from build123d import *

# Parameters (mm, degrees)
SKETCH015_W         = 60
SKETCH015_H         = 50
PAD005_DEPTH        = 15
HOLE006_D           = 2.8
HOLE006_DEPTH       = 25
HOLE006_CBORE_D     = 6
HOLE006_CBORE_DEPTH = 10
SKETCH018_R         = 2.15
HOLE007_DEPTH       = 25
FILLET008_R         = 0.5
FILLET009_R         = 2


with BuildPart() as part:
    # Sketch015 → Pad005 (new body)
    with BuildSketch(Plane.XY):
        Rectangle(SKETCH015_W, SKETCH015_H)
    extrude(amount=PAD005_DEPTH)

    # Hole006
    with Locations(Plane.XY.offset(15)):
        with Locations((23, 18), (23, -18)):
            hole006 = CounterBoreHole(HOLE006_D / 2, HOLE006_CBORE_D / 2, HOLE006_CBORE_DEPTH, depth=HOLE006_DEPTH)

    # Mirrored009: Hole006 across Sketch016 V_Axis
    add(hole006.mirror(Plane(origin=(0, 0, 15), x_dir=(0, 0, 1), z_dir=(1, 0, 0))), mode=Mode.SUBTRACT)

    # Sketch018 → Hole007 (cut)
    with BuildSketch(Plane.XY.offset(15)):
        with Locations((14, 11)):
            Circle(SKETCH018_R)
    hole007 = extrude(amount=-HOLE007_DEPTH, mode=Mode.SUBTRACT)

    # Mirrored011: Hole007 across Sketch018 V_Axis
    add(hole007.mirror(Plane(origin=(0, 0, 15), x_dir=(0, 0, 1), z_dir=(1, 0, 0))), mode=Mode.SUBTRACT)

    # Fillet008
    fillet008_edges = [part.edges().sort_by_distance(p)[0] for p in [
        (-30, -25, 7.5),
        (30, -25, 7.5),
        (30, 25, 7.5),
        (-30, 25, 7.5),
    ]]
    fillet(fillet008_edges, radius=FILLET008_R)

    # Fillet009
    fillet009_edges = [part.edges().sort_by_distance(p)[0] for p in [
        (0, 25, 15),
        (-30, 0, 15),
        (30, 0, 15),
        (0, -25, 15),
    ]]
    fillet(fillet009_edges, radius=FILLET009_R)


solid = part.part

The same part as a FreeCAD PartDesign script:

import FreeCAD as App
import Part
import Sketcher
Q = App.Units.Quantity


def edges_at(feature, points):
    """Names of the edges that pass closest to the given points."""
    edges = feature.Shape.Edges
    near = lambda p: min(range(len(edges)), key=lambda i: edges[i].distToShape(Part.Vertex(*p))[0])
    return sorted({f"Edge{near(p) + 1}" for p in points})


def add_polygon(sketch, points):
    """Adds a closed chain of lines whose ends are joined by coincident constraints."""
    first, n = sketch.GeometryCount, len(points)
    for a, b in zip(points, points[1:] + points[:1]):
        sketch.addGeometry(Part.LineSegment(App.Vector(*a, 0), App.Vector(*b, 0)), False)
    for i in range(n):
        sketch.addConstraint(Sketcher.Constraint("Coincident", first + i, 2, first + (i + 1) % n, 1))

doc = App.newDocument("Part")
body = doc.addObject("PartDesign::Body", "Body")

sketch1 = body.newObject("Sketcher::SketchObject", "Sketch")
sketch1.AttachmentSupport = (doc.getObject("XY_Plane"), [""])
sketch1.MapMode = "FlatFace"
add_polygon(sketch1, [(-30, 25), (-30, -25), (30, -25), (30, 25)])
sketch1.addConstraint([
    Sketcher.Constraint("Vertical", 0),
    Sketcher.Constraint("Horizontal", 1),
    Sketcher.Constraint("Vertical", 2),
    Sketcher.Constraint("Horizontal", 3),
    Sketcher.Constraint("Symmetric", 0, 2, 2, 2, -1, 1),
    Sketcher.Constraint("DistanceX", 1, 1, 1, 2, Q("60 mm")),
    Sketcher.Constraint("DistanceY", 0, 2, 0, 1, Q("50 mm")),
])
pad1 = body.newObject("PartDesign::Pad", "Pad")
pad1.Profile = sketch1
pad1.Length = 15

sketch2 = body.newObject("Sketcher::SketchObject", "Sketch001")
sketch2.AttachmentSupport = (doc.getObject("XY_Plane"), [""])
sketch2.MapMode = "FlatFace"
sketch2.AttachmentOffset = App.Placement(App.Vector(0, 0, 15), App.Rotation())
sketch2.addGeometry([
    Part.Circle(App.Vector(23, 18, 0), App.Vector(0, 0, 1), 1.4),
    Part.Circle(App.Vector(23, -18, 0), App.Vector(0, 0, 1), 1.4),
], False)
sketch2.addConstraint([
    Sketcher.Constraint("Equal", 0, 1),
    Sketcher.Constraint("Symmetric", 0, 3, 1, 3, -1),
    Sketcher.Constraint("Diameter", 0, Q("2.8 mm")),
    Sketcher.Constraint("DistanceX", -1, 1, 0, 3, Q("23 mm")),
    Sketcher.Constraint("DistanceY", -1, 1, 0, 3, Q("18 mm")),
])
doc.recompute()
hole = body.newObject("PartDesign::Hole", "Hole")
hole.Profile = sketch2
hole.ThreadType = "None"
hole.Diameter = 2.8
hole.DepthType = "Dimension"
hole.Depth = 25
hole.DrillPoint = "Flat"
hole.HoleCutType = "Counterbore"
hole.HoleCutDiameter = 6
hole.HoleCutDepth = 10
doc.recompute()

mirrored = body.newObject("PartDesign::Mirrored", "Mirrored")
mirrored.Originals = [hole]
mirrored.MirrorPlane = (doc.getObject("YZ_Plane"), [""])
body.Tip = mirrored

sketch3 = body.newObject("Sketcher::SketchObject", "Sketch002")
sketch3.AttachmentSupport = (doc.getObject("XY_Plane"), [""])
sketch3.MapMode = "FlatFace"
sketch3.AttachmentOffset = App.Placement(App.Vector(0, 0, 15), App.Rotation())
sketch3.addGeometry(Part.Circle(App.Vector(14, 11, 0), App.Vector(0, 0, 1), 2.1), False)
sketch3.addConstraint([
    Sketcher.Constraint("Diameter", 0, Q("4.3 mm")),
    Sketcher.Constraint("DistanceX", -1, 1, 0, 3, Q("14 mm")),
    Sketcher.Constraint("DistanceY", -1, 1, 0, 3, Q("11 mm")),
])
pocket1 = body.newObject("PartDesign::Pocket", "Pocket")
pocket1.Profile = sketch3
pocket1.Length = 25
doc.recompute()

mirrored2 = body.newObject("PartDesign::Mirrored", "Mirrored001")
mirrored2.Originals = [pocket1]
mirrored2.MirrorPlane = (doc.getObject("YZ_Plane"), [""])
body.Tip = mirrored2
doc.recompute()

fillet = body.newObject("PartDesign::Fillet", "Fillet")
fillet.Base = (mirrored2, edges_at(mirrored2, [
    (-30, -25, 7.5),
    (30, -25, 7.5),
    (30, 25, 7.5),
    (-30, 25, 7.5),
]))
fillet.Radius = 0.5
doc.recompute()

fillet2 = body.newObject("PartDesign::Fillet", "Fillet001")
fillet2.Base = (fillet, edges_at(fillet, [
    (0, 25, 15),
    (-30, 0, 15),
    (30, 0, 15),
    (0, -25, 15),
]))
fillet2.Radius = 2

doc.recompute()
